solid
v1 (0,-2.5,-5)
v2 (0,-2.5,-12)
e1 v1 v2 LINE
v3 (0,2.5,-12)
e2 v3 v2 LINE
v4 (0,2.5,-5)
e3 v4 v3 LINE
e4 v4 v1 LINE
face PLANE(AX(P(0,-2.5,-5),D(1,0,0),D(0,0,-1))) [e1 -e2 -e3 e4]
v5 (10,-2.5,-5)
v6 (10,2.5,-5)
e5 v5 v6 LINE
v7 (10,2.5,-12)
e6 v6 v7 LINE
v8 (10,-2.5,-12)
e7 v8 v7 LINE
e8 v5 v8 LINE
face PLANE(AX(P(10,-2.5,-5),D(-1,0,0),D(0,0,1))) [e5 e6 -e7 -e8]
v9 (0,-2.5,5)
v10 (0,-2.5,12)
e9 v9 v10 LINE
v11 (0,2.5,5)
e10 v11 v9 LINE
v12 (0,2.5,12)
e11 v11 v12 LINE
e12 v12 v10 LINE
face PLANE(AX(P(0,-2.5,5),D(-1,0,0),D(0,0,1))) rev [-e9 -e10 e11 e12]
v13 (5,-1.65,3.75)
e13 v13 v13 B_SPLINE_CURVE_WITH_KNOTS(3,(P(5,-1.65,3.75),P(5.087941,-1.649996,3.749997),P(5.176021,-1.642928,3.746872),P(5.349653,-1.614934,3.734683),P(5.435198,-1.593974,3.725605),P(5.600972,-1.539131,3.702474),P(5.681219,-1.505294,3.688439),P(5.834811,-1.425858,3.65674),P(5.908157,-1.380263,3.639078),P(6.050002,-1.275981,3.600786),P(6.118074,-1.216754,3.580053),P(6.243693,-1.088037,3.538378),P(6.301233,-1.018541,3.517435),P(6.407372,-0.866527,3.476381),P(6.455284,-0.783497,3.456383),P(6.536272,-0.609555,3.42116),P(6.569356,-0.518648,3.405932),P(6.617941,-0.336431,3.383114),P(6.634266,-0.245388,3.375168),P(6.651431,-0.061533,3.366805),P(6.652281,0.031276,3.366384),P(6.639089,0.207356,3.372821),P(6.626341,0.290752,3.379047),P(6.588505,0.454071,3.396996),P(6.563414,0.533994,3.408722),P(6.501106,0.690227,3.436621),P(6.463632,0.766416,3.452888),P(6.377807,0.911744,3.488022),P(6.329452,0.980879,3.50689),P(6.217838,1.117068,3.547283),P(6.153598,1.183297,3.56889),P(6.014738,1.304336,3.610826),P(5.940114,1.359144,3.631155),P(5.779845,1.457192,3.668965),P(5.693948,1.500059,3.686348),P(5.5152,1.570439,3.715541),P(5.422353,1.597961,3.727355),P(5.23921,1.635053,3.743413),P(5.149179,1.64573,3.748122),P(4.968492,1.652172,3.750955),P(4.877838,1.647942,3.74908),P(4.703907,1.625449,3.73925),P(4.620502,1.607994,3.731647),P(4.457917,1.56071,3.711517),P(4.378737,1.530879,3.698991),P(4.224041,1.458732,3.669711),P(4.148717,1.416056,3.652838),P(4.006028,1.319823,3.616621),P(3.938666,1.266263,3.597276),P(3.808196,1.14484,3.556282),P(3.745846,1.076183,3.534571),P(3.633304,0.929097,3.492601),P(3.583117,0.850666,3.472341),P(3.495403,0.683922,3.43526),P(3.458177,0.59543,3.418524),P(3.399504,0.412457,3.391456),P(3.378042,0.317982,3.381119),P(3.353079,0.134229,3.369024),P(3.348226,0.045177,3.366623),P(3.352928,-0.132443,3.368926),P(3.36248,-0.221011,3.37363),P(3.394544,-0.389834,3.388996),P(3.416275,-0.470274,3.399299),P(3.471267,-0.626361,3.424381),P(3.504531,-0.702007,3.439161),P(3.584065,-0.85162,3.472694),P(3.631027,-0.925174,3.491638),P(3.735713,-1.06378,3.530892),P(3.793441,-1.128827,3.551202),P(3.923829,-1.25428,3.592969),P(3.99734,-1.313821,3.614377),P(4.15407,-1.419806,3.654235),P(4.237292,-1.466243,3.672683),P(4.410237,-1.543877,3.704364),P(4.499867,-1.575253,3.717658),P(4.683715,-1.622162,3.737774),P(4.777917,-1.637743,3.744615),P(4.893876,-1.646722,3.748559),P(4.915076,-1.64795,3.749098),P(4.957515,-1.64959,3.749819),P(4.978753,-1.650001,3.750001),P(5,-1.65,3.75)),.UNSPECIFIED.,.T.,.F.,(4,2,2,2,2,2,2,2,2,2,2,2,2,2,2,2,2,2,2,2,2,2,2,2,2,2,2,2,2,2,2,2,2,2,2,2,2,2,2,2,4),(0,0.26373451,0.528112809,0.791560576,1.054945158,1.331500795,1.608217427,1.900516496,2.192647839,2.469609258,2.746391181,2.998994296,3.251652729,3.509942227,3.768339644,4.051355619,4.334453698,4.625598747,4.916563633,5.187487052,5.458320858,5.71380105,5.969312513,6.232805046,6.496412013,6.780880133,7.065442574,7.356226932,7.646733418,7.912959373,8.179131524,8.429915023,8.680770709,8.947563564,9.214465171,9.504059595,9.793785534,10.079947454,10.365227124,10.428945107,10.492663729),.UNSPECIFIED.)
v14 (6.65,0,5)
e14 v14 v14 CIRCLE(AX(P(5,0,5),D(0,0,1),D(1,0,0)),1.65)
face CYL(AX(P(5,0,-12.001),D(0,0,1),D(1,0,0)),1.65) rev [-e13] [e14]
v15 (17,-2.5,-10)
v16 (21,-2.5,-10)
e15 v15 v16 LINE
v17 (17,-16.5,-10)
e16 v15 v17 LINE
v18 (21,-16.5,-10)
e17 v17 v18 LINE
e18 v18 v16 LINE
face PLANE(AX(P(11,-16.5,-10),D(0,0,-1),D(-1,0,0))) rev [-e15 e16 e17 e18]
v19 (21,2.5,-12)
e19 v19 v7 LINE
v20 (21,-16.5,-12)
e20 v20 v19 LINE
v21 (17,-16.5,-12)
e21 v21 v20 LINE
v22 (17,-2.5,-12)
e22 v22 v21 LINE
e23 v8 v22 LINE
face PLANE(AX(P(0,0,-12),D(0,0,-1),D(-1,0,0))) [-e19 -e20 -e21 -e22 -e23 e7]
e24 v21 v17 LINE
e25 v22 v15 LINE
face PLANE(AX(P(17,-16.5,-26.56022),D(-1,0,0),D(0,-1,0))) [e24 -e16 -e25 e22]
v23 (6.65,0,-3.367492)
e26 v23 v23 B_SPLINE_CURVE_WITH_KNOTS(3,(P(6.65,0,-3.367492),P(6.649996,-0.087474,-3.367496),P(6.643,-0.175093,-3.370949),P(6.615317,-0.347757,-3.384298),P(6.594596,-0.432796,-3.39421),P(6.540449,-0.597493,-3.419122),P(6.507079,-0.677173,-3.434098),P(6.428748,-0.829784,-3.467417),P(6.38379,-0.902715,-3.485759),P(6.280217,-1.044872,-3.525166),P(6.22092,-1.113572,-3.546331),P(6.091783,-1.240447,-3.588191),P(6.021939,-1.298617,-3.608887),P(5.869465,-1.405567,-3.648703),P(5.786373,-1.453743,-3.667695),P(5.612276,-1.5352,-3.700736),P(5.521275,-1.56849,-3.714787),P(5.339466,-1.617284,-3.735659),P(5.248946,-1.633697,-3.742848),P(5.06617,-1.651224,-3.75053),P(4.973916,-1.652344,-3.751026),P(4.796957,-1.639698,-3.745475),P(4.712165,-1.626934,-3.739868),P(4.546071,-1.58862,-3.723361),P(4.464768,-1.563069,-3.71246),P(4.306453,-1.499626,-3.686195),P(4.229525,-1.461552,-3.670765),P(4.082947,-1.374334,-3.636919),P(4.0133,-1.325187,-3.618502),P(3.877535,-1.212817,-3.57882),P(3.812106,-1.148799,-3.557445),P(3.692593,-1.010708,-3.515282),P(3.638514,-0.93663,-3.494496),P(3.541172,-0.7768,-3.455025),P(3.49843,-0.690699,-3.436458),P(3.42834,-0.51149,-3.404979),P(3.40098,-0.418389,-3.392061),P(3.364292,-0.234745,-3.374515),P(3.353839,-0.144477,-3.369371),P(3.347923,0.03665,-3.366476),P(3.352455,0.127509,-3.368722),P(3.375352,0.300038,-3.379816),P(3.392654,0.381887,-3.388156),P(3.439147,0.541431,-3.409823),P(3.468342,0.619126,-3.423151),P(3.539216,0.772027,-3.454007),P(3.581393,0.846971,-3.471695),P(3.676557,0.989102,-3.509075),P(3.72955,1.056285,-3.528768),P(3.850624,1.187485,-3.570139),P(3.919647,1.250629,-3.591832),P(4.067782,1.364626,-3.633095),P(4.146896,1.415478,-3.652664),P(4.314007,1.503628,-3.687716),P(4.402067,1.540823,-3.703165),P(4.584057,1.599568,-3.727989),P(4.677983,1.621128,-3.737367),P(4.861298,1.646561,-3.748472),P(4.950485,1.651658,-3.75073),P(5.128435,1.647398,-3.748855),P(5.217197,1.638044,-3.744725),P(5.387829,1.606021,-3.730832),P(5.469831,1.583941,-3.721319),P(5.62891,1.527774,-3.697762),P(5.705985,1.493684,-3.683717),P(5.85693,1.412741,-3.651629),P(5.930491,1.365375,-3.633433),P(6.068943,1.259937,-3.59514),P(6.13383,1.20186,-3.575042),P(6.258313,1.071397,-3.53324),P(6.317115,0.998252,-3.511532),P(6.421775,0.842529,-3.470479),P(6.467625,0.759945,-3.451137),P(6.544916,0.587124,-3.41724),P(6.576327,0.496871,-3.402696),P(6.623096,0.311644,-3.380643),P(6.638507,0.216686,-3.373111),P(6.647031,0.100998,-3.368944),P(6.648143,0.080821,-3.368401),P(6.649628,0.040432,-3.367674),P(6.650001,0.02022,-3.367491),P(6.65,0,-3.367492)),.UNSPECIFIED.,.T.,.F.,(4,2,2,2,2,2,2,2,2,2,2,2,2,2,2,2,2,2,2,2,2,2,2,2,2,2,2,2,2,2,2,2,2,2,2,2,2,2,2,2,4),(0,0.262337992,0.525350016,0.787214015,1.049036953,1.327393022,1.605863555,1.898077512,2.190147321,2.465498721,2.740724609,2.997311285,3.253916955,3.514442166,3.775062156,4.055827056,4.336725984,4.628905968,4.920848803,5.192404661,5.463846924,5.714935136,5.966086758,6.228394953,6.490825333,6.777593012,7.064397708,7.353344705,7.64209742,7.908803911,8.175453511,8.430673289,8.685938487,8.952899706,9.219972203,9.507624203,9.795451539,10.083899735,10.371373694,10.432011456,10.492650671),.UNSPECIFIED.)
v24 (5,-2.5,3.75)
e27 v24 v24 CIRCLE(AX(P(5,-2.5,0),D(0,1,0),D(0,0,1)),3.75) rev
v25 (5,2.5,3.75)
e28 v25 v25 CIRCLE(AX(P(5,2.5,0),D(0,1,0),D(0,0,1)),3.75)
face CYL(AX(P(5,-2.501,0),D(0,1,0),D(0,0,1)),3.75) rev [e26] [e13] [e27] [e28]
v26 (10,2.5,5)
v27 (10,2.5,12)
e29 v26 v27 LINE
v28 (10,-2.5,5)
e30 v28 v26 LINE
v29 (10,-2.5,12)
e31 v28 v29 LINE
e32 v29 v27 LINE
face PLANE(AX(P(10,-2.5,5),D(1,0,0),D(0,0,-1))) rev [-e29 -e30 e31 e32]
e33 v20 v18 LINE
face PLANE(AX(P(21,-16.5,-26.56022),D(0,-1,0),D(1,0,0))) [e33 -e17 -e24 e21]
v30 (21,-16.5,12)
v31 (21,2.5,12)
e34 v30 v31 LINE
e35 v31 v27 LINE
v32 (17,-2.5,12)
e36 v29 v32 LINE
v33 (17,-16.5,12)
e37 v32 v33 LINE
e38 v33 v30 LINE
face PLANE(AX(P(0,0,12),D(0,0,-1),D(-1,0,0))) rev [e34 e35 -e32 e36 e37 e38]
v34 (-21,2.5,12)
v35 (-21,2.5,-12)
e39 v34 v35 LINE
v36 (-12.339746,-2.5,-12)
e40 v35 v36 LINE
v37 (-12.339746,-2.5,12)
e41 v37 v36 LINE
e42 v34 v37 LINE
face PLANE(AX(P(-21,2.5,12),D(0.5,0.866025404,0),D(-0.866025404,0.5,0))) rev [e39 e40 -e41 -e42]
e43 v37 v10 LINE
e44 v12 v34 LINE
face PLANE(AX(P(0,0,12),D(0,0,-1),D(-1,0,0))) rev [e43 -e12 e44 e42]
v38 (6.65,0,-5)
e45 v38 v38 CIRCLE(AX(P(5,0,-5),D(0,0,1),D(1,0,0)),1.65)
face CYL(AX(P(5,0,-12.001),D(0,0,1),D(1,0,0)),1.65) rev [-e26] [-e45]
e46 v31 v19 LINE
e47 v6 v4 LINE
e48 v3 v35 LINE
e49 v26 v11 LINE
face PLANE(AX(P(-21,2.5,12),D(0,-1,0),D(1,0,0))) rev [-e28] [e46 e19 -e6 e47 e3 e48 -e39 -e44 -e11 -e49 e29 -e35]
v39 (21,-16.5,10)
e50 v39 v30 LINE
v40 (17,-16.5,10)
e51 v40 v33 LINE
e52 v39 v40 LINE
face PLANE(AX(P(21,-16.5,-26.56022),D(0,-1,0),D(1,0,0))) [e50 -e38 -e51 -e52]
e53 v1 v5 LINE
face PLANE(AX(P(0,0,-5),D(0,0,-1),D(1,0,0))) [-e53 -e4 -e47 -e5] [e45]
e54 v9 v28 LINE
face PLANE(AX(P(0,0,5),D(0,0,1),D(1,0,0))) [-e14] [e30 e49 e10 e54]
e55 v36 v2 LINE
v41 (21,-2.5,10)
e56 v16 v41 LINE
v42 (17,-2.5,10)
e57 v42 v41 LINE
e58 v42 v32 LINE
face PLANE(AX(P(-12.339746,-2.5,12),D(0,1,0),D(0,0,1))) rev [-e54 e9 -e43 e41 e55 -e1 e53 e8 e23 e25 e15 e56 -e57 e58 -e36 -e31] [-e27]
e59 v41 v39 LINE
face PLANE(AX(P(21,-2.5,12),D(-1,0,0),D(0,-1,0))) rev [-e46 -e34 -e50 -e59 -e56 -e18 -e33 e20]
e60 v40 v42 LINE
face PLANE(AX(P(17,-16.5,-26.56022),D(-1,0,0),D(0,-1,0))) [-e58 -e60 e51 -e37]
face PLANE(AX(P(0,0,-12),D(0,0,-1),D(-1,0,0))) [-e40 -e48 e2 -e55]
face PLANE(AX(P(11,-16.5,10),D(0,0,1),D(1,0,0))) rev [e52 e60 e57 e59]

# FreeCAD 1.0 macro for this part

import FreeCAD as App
import Part
import Sketcher
Q = App.Units.Quantity

doc = App.newDocument("Part")
body = doc.addObject("PartDesign::Body", "Body")

# Sketch on XY plane
sketch1 = body.newObject("Sketcher::SketchObject", "Sketch")
sketch1.AttachmentSupport = (doc.getObject("XY_Plane"), [""])
sketch1.MapMode = "FlatFace"
sketch1.addGeometry(Part.LineSegment(App.Vector(-21, 2, 0), App.Vector(-12, -2, 0)), False)
sketch1.addGeometry(Part.LineSegment(App.Vector(-12, -2, 0), App.Vector(21, -2, 0)), False)
sketch1.addGeometry(Part.LineSegment(App.Vector(21, -2, 0), App.Vector(21, 2, 0)), False)
sketch1.addGeometry(Part.LineSegment(App.Vector(21, 2, 0), App.Vector(-21, 2, 0)), False)
sketch1.addConstraint(Sketcher.Constraint("Coincident", 0, 2, 1, 1))
sketch1.addConstraint(Sketcher.Constraint("Coincident", 1, 2, 2, 1))
sketch1.addConstraint(Sketcher.Constraint("Coincident", 2, 2, 3, 1))
sketch1.addConstraint(Sketcher.Constraint("Coincident", 3, 2, 0, 1))
sketch1.addConstraint(Sketcher.Constraint("Horizontal", 1))
sketch1.addConstraint(Sketcher.Constraint("Vertical", 2))
sketch1.addConstraint(Sketcher.Constraint("Horizontal", 3))
sketch1.addConstraint(Sketcher.Constraint("Symmetric", 1, 2, 3, 2, -1, 1))
sketch1.addConstraint(Sketcher.Constraint("DistanceX", 3, 2, 3, 1, Q("42 mm")))
sketch1.addConstraint(Sketcher.Constraint("DistanceY", 2, 1, 2, 2, Q("5 mm")))
sketch1.addConstraint(Sketcher.Constraint("Angle", 0, Q("-30 deg")))
pad1 = body.newObject("PartDesign::Pad", "Pad")
pad1.Profile = sketch1
pad1.Length = 24
pad1.Midplane = True

# Sketch on XY plane
sketch2 = body.newObject("Sketcher::SketchObject", "Sketch001")
sketch2.AttachmentSupport = (doc.getObject("XY_Plane"), [""])
sketch2.MapMode = "FlatFace"
sketch2.AttachmentOffset = App.Placement(App.Vector(0, 0, 12), App.Rotation())
sketch2.addGeometry(Part.Circle(App.Vector(5, 0, 0), App.Vector(0, 0, 1), 1.6), False)
sketch2.addConstraint(Sketcher.Constraint("PointOnObject", 0, 3, -1))
sketch2.addConstraint(Sketcher.Constraint("Diameter", 0, Q("3.3 mm")))
sketch2.addConstraint(Sketcher.Constraint("DistanceX", -1, 1, 0, 3, Q("5 mm")))
pocket1 = body.newObject("PartDesign::Pocket", "Pocket")
pocket1.Profile = sketch2
pocket1.Type = "UpToFirst"

# Sketch on XY plane
sketch3 = body.newObject("Sketcher::SketchObject", "Sketch002")
sketch3.AttachmentSupport = (doc.getObject("XY_Plane"), [""])
sketch3.MapMode = "FlatFace"
sketch3.AttachmentOffset = App.Placement(App.Vector(0, 0, 12), App.Rotation())
sketch3.addGeometry(Part.LineSegment(App.Vector(0, 2.5, 0), App.Vector(0, -2.5, 0)), False)
sketch3.addGeometry(Part.LineSegment(App.Vector(0, -2.5, 0), App.Vector(10, -2.5, 0)), False)
sketch3.addGeometry(Part.LineSegment(App.Vector(10, -2.5, 0), App.Vector(10, 2.5, 0)), False)
sketch3.addGeometry(Part.LineSegment(App.Vector(10, 2.5, 0), App.Vector(0, 2.5, 0)), False)
sketch3.addGeometry(Part.Circle(App.Vector(5, 0, 0), App.Vector(0, 0, 1), 1.6), False)
sketch3.addConstraint(Sketcher.Constraint("Coincident", 0, 2, 1, 1))
sketch3.addConstraint(Sketcher.Constraint("Coincident", 1, 2, 2, 1))
sketch3.addConstraint(Sketcher.Constraint("Coincident", 2, 2, 3, 1))
sketch3.addConstraint(Sketcher.Constraint("Coincident", 3, 2, 0, 1))
sketch3.addConstraint(Sketcher.Constraint("Vertical", 0))
sketch3.addConstraint(Sketcher.Constraint("Horizontal", 1))
sketch3.addConstraint(Sketcher.Constraint("Vertical", 2))
sketch3.addConstraint(Sketcher.Constraint("Horizontal", 3))
sketch3.addConstraint(Sketcher.Constraint("Symmetric", 0, 2, 3, 2, -1, 1))
sketch3.addConstraint(Sketcher.Constraint("PointOnObject", 4, 3, -1))
sketch3.addConstraint(Sketcher.Constraint("Diameter", 4, Q("3.3 mm")))
sketch3.addConstraint(Sketcher.Constraint("DistanceX", 1, 1, 1, 2, Q("10 mm")))
sketch3.addConstraint(Sketcher.Constraint("DistanceY", 0, 2, 0, 1, Q("5 mm")))
sketch3.addConstraint(Sketcher.Constraint("DistanceX", -1, 1, 4, 3, Q("5 mm")))
pocket2 = body.newObject("PartDesign::Pocket", "Pocket001")
pocket2.Profile = sketch3
pocket2.Length = 7
doc.recompute()

mirrored = body.newObject("PartDesign::Mirrored", "Mirrored")
mirrored.Originals = [pocket2]
mirrored.MirrorPlane = (doc.getObject("XY_Plane"), [""])
body.Tip = mirrored

# Sketch on XZ plane
sketch4 = body.newObject("Sketcher::SketchObject", "Sketch003")
sketch4.AttachmentSupport = (doc.getObject("XZ_Plane"), [""])
sketch4.MapMode = "FlatFace"
sketch4.AttachmentOffset = App.Placement(App.Vector(0, 0, -2.5), App.Rotation())
sketch4.addGeometry(Part.Circle(App.Vector(5, 0, 0), App.Vector(0, 0, 1), 3.8), False)
sketch4.addConstraint(Sketcher.Constraint("PointOnObject", 0, 3, -1))
sketch4.addConstraint(Sketcher.Constraint("Diameter", 0, Q("7.5 mm")))
sketch4.addConstraint(Sketcher.Constraint("DistanceX", -1, 1, 0, 3, Q("5 mm")))
pocket3 = body.newObject("PartDesign::Pocket", "Pocket002")
pocket3.Profile = sketch4
pocket3.Length = 5
pocket3.Reversed = True

# Sketch on XY plane
sketch5 = body.newObject("Sketcher::SketchObject", "Sketch004")
sketch5.AttachmentSupport = (doc.getObject("XY_Plane"), [""])
sketch5.MapMode = "FlatFace"
sketch5.AttachmentOffset = App.Placement(App.Vector(0, 0, 12), App.Rotation())
sketch5.addGeometry(Part.LineSegment(App.Vector(17, -2.5, 0), App.Vector(17, -16.5, 0)), False)
sketch5.addGeometry(Part.LineSegment(App.Vector(17, -16.5, 0), App.Vector(21, -16.5, 0)), False)
sketch5.addGeometry(Part.LineSegment(App.Vector(21, -16.5, 0), App.Vector(21, -2.5, 0)), False)
sketch5.addGeometry(Part.LineSegment(App.Vector(21, -2.5, 0), App.Vector(17, -2.5, 0)), False)
sketch5.addConstraint(Sketcher.Constraint("Coincident", 0, 2, 1, 1))
sketch5.addConstraint(Sketcher.Constraint("Coincident", 1, 2, 2, 1))
sketch5.addConstraint(Sketcher.Constraint("Coincident", 2, 2, 3, 1))
sketch5.addConstraint(Sketcher.Constraint("Coincident", 3, 2, 0, 1))
sketch5.addConstraint(Sketcher.Constraint("Vertical", 0))
sketch5.addConstraint(Sketcher.Constraint("Horizontal", 1))
sketch5.addConstraint(Sketcher.Constraint("Vertical", 2))
sketch5.addConstraint(Sketcher.Constraint("Horizontal", 3))
sketch5.addConstraint(Sketcher.Constraint("DistanceX", 1, 1, 1, 2, Q("4 mm")))
sketch5.addConstraint(Sketcher.Constraint("DistanceY", 0, 2, 0, 1, Q("14 mm")))
sketch5.addConstraint(Sketcher.Constraint("DistanceX", -1, 1, 0, 2, Q("17 mm")))
sketch5.addConstraint(Sketcher.Constraint("DistanceY", 0, 2, -1, 1, Q("16.5 mm")))
pad2 = body.newObject("PartDesign::Pad", "Pad001")
pad2.Profile = sketch5
pad2.Length = 24
pad2.Reversed = True

# Sketch on YZ plane
sketch6 = body.newObject("Sketcher::SketchObject", "Sketch005")
sketch6.AttachmentSupport = (doc.getObject("YZ_Plane"), [""])
sketch6.MapMode = "FlatFace"
sketch6.AttachmentOffset = App.Placement(App.Vector(0, 0, 21), App.Rotation())
sketch6.addGeometry(Part.LineSegment(App.Vector(-2, 10, 0), App.Vector(-16, 10, 0)), False)
sketch6.addGeometry(Part.LineSegment(App.Vector(-16, 10, 0), App.Vector(-16, -10, 0)), False)
sketch6.addGeometry(Part.LineSegment(App.Vector(-16, -10, 0), App.Vector(-2, -10, 0)), False)
sketch6.addGeometry(Part.LineSegment(App.Vector(-2, -10, 0), App.Vector(-2, 10, 0)), False)
sketch6.addConstraint(Sketcher.Constraint("Coincident", 0, 2, 1, 1))
sketch6.addConstraint(Sketcher.Constraint("Coincident", 1, 2, 2, 1))
sketch6.addConstraint(Sketcher.Constraint("Coincident", 2, 2, 3, 1))
sketch6.addConstraint(Sketcher.Constraint("Coincident", 3, 2, 0, 1))
sketch6.addConstraint(Sketcher.Constraint("Horizontal", 0))
sketch6.addConstraint(Sketcher.Constraint("Vertical", 1))
sketch6.addConstraint(Sketcher.Constraint("Horizontal", 2))
sketch6.addConstraint(Sketcher.Constraint("Vertical", 3))
sketch6.addConstraint(Sketcher.Constraint("DistanceX", 0, 2, 0, 1, Q("14 mm")))
sketch6.addConstraint(Sketcher.Constraint("DistanceY", 1, 2, 1, 1, Q("20 mm")))
sketch6.addConstraint(Sketcher.Constraint("DistanceY", -1, 1, 0, 2, Q("10 mm")))
sketch6.addConstraint(Sketcher.Constraint("DistanceX", 0, 2, -1, 1, Q("16.5 mm")))
pocket4 = body.newObject("PartDesign::Pocket", "Pocket003")
pocket4.Profile = sketch6
pocket4.Length = 10

doc.recompute()
